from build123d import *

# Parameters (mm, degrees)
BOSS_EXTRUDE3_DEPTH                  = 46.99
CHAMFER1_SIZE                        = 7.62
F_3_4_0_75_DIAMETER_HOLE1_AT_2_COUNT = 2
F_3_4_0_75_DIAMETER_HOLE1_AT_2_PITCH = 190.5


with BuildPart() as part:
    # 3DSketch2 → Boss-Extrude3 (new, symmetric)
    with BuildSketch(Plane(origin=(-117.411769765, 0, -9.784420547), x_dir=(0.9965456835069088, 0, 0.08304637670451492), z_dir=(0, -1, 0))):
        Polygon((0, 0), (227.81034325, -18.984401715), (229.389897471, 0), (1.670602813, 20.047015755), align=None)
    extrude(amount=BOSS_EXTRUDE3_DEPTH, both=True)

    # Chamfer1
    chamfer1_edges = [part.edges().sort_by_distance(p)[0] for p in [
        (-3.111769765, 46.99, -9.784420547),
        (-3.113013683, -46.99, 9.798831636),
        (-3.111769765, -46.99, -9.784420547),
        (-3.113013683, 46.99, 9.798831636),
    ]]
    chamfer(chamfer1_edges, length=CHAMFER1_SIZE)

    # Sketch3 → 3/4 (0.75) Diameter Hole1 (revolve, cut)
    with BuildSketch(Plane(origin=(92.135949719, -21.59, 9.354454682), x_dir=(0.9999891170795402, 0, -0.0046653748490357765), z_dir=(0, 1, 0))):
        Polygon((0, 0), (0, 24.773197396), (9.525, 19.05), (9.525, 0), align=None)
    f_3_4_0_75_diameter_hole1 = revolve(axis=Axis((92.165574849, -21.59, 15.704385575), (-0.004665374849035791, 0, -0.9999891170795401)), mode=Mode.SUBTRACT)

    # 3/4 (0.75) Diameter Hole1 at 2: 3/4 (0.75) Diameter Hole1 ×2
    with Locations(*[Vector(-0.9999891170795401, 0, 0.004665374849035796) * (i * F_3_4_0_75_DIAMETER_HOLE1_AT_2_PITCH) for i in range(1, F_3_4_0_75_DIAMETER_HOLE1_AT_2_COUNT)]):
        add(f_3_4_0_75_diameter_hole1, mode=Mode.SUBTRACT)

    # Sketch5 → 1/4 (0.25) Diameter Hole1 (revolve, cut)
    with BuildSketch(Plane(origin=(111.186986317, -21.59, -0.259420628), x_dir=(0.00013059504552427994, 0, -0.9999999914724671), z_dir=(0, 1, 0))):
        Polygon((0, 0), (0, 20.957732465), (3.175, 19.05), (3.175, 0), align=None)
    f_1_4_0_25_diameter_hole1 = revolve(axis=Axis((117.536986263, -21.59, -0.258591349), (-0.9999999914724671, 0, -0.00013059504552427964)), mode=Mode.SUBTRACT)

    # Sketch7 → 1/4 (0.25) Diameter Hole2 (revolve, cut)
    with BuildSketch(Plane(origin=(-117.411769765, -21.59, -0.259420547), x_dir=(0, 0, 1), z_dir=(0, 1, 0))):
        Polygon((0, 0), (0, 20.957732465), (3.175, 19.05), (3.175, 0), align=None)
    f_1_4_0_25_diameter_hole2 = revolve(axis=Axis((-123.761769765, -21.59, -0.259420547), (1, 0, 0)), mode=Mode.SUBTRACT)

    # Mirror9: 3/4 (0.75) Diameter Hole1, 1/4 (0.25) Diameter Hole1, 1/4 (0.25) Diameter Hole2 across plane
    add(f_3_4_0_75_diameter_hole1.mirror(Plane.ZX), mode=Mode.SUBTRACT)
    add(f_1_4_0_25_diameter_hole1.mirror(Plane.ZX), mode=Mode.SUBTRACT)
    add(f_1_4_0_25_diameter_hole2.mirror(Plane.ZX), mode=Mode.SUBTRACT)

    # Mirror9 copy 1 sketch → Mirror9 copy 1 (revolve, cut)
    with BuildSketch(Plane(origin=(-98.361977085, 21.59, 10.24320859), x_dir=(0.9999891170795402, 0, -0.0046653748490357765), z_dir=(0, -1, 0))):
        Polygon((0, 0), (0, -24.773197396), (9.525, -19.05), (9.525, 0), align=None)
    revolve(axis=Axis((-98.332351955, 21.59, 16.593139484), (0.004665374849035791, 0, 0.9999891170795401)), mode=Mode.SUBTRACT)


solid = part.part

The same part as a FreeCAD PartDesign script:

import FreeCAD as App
import Part
import Sketcher
Q = App.Units.Quantity


def edges_at(feature, points):
    """Names of the edges that pass closest to the given points."""
    edges = feature.Shape.Edges
    near = lambda p: min(range(len(edges)), key=lambda i: edges[i].distToShape(Part.Vertex(*p))[0])
    return sorted({f"Edge{near(p) + 1}" for p in points})


def add_polygon(sketch, points):
    """Adds a closed chain of lines whose ends are joined by coincident constraints."""
    first, n = sketch.GeometryCount, len(points)
    for a, b in zip(points, points[1:] + points[:1]):
        sketch.addGeometry(Part.LineSegment(App.Vector(*a, 0), App.Vector(*b, 0)), False)
    for i in range(n):
        sketch.addConstraint(Sketcher.Constraint("Coincident", first + i, 2, first + (i + 1) % n, 1))

doc = App.newDocument("Part")
body = doc.addObject("PartDesign::Body", "Body")

# Sketch on XZ plane
sketch1 = body.newObject("Sketcher::SketchObject", "Sketch")
sketch1.AttachmentSupport = (doc.getObject("XZ_Plane"), [""])
sketch1.MapMode = "FlatFace"
add_polygon(sketch1, [(-117, -10), (111, -10), (111, 9), (-117, 10)])  # lines 0-3
sketch1.addConstraint(Sketcher.Constraint("Horizontal", 0))
sketch1.addConstraint(Sketcher.Constraint("Vertical", 3))
sketch1.addConstraint(Sketcher.Constraint("DistanceX", 0, 1, 0, 2, Q("9 in")))
sketch1.addConstraint(Sketcher.Constraint("Distance", 2, Q("9 in")))
sketch1.addConstraint(Sketcher.Constraint("Distance", 1, Q("0.75 in")))
sketch1.addConstraint(Sketcher.Constraint("DistanceY", 3, 2, 3, 1, 20.116505))
sketch1.addConstraint(Sketcher.Constraint("DistanceX", -1, 1, 0, 2, 111.18823))
sketch1.addConstraint(Sketcher.Constraint("DistanceY", 0, 2, -1, 1, 9.78442))
pad1 = body.newObject("PartDesign::Pad", "Pad")
pad1.Profile = sketch1
pad1.Length = Q("3.7 in")
pad1.Midplane = True
doc.recompute()

chamfer = body.newObject("PartDesign::Chamfer", "Chamfer")
chamfer.Base = (pad1, edges_at(pad1, [
    (-3.112, 46.99, -9.784),
    (-3.113, -46.99, 9.799),
    (-3.112, -46.99, -9.784),
    (-3.113, 46.99, 9.799),
]))
chamfer.Size = Q("0.3 in")

# Sketch on XZ plane
sketch2 = body.newObject("Sketcher::SketchObject", "Sketch001")
sketch2.AttachmentSupport = (doc.getObject("XZ_Plane"), [""])
sketch2.MapMode = "FlatFace"
sketch2.AttachmentOffset = App.Placement(App.Vector(0, 0, 0.85 * 25.4), App.Rotation())
add_polygon(sketch2, [(92, -15), (92, 9), (102, 9), (102, -10)])  # lines 0-3
sketch2.addGeometry(Part.LineSegment(App.Vector(92, 9, 0), App.Vector(92, -15, 0)), True)  # axis
sketch2.addConstraint(Sketcher.Constraint("Coincident", 4, 1, 0, 2))
sketch2.addConstraint(Sketcher.Constraint("Coincident", 4, 2, 3, 2))
sketch2.addConstraint(Sketcher.Constraint("Perpendicular", 0, 1))
sketch2.addConstraint(Sketcher.Constraint("Perpendicular", 1, 2))
sketch2.addConstraint(Sketcher.Constraint("Distance", 2, Q("0.75 in")))
sketch2.addConstraint(Sketcher.Constraint("Distance", 1, Q("0.375 in")))
sketch2.addConstraint(Sketcher.Constraint("DistanceX", -1, 1, 0, 2, 92.13595))
sketch2.addConstraint(Sketcher.Constraint("DistanceX", -1, 1, 2, 2, 101.571971))
sketch2.addConstraint(Sketcher.Constraint("DistanceY", 3, 2, 1, 2, 24.72849))
sketch2.addConstraint(Sketcher.Constraint("DistanceY", -1, 1, 0, 2, 9.354455))
groove = body.newObject("PartDesign::Groove", "Groove")
groove.Profile = sketch2
groove.ReferenceAxis = (sketch2, ["Axis0"])
groove.Angle = 360
doc.recompute()

datumline = body.newObject("PartDesign::Line", "DatumLine")
datumline.Placement = App.Placement(App.Vector(0, 0, 0), App.Rotation(App.Vector(0, 0, 1), App.Vector(-0.999989117, 0, 0.004665375)))
linearpattern = body.newObject("PartDesign::LinearPattern", "LinearPattern")
linearpattern.Originals = [groove]
linearpattern.Direction = (datumline, [""])
linearpattern.Mode = "offset"
linearpattern.Offset = Q("7.5 in")
linearpattern.Occurrences = 2
body.Tip = linearpattern

# Sketch on XZ plane
sketch3 = body.newObject("Sketcher::SketchObject", "Sketch002")
sketch3.AttachmentSupport = (doc.getObject("XZ_Plane"), [""])
sketch3.MapMode = "FlatFace"
sketch3.AttachmentOffset = App.Placement(App.Vector(0, 0, 0.85 * 25.4), App.Rotation())
add_polygon(sketch3, [(90.2, -0.3), (111.2, -0.3), (111.2, -3.4), (92.1, -3.4)])  # lines 0-3
sketch3.addGeometry(Part.LineSegment(App.Vector(111.2, -0.3, 0), App.Vector(90.2, -0.3, 0)), True)  # axis
sketch3.addConstraint(Sketcher.Constraint("Coincident", 4, 1, 0, 2))
sketch3.addConstraint(Sketcher.Constraint("Coincident", 4, 2, 3, 2))
sketch3.addConstraint(Sketcher.Constraint("Perpendicular", 0, 1))
sketch3.addConstraint(Sketcher.Constraint("Perpendicular", 1, 2))
sketch3.addConstraint(Sketcher.Constraint("Distance", 2, Q("0.75 in")))
sketch3.addConstraint(Sketcher.Constraint("Distance", 1, Q("0.125 in")))
sketch3.addConstraint(Sketcher.Constraint("DistanceX", -1, 1, 1, 2, 111.187401))
sketch3.addConstraint(Sketcher.Constraint("Distance", 3, 3.704061))
sketch3.addConstraint(Sketcher.Constraint("DistanceY", 0, 2, -1, 1, 0.259421))
sketch3.addConstraint(Sketcher.Constraint("DistanceY", 2, 2, -1, 1, 3.436908))
groove2 = body.newObject("PartDesign::Groove", "Groove001")
groove2.Profile = sketch3
groove2.ReferenceAxis = (sketch3, ["Axis0"])
groove2.Angle = 360

# Sketch on XZ plane
sketch4 = body.newObject("Sketcher::SketchObject", "Sketch003")
sketch4.AttachmentSupport = (doc.getObject("XZ_Plane"), [""])
sketch4.MapMode = "FlatFace"
sketch4.AttachmentOffset = App.Placement(App.Vector(0, 0, 0.85 * 25.4), App.Rotation())
add_polygon(sketch4, [(-96.5, -0.3), (-117.4, -0.3), (-117.4, 2.9), (-98.4, 2.9)])  # lines 0-3
sketch4.addGeometry(Part.LineSegment(App.Vector(-117.4, -0.3, 0), App.Vector(-96.5, -0.3, 0)), True)  # axis
sketch4.addConstraint(Sketcher.Constraint("Horizontal", 0))
sketch4.addConstraint(Sketcher.Constraint("Vertical", 1))
sketch4.addConstraint(Sketcher.Constraint("Horizontal", 2))
sketch4.addConstraint(Sketcher.Constraint("Horizontal", 4))
sketch4.addConstraint(Sketcher.Constraint("Coincident", 4, 1, 0, 2))
sketch4.addConstraint(Sketcher.Constraint("Equal", 0, 4))
sketch4.addConstraint(Sketcher.Constraint("Angle", 3, Q("-59 deg")))
sketch4.addConstraint(Sketcher.Constraint("DistanceX", 2, 1, 2, 2, Q("0.75 in")))
sketch4.addConstraint(Sketcher.Constraint("DistanceY", 1, 1, 1, 2, Q("0.125 in")))
sketch4.addConstraint(Sketcher.Constraint("DistanceX", 0, 2, -1, 1, 117.41177))
sketch4.addConstraint(Sketcher.Constraint("DistanceY", 0, 2, -1, 1, 0.259421))
groove3 = body.newObject("PartDesign::Groove", "Groove002")
groove3.Profile = sketch4
groove3.ReferenceAxis = (sketch4, ["Axis0"])
groove3.Angle = 360
doc.recompute()

mirrored = body.newObject("PartDesign::Mirrored", "Mirrored")
mirrored.Originals = [groove, groove2, groove3]
mirrored.MirrorPlane = (doc.getObject("XZ_Plane"), [""])
body.Tip = mirrored

# Sketch on XZ plane
sketch5 = body.newObject("Sketcher::SketchObject", "Sketch004")
sketch5.AttachmentSupport = (doc.getObject("XZ_Plane"), [""])
sketch5.MapMode = "FlatFace"
sketch5.AttachmentOffset = App.Placement(App.Vector(0, 0, -0.85 * 25.4), App.Rotation())
add_polygon(sketch5, [(-98, 10), (-98, -15), (-89, -9), (-89, 10)])  # lines 0-3
sketch5.addGeometry(Part.LineSegment(App.Vector(-98, -15, 0), App.Vector(-98, 10, 0)), True)  # axis
sketch5.addConstraint(Sketcher.Constraint("Coincident", 4, 1, 0, 2))
sketch5.addConstraint(Sketcher.Constraint("Coincident", 4, 2, 3, 2))
sketch5.addConstraint(Sketcher.Constraint("Parallel", 0, 2))
sketch5.addConstraint(Sketcher.Constraint("Perpendicular", 2, 3))
sketch5.addConstraint(Sketcher.Constraint("Distance", 2, Q("0.75 in")))
sketch5.addConstraint(Sketcher.Constraint("Distance", 3, Q("0.375 in")))
sketch5.addConstraint(Sketcher.Constraint("DistanceY", 0, 2, -1, 1, 14.529719))
sketch5.addConstraint(Sketcher.Constraint("DistanceY", 1, 2, -1, 1, 8.851022))
sketch5.addConstraint(Sketcher.Constraint("DistanceX", 2, 2, -1, 1, 88.837081))
sketch5.addConstraint(Sketcher.Constraint("DistanceY", -1, 1, 3, 2, 10.243209))
groove4 = body.newObject("PartDesign::Groove", "Groove003")
groove4.Profile = sketch5
groove4.ReferenceAxis = (sketch5, ["Axis0"])
groove4.Angle = 360

doc.recompute()
